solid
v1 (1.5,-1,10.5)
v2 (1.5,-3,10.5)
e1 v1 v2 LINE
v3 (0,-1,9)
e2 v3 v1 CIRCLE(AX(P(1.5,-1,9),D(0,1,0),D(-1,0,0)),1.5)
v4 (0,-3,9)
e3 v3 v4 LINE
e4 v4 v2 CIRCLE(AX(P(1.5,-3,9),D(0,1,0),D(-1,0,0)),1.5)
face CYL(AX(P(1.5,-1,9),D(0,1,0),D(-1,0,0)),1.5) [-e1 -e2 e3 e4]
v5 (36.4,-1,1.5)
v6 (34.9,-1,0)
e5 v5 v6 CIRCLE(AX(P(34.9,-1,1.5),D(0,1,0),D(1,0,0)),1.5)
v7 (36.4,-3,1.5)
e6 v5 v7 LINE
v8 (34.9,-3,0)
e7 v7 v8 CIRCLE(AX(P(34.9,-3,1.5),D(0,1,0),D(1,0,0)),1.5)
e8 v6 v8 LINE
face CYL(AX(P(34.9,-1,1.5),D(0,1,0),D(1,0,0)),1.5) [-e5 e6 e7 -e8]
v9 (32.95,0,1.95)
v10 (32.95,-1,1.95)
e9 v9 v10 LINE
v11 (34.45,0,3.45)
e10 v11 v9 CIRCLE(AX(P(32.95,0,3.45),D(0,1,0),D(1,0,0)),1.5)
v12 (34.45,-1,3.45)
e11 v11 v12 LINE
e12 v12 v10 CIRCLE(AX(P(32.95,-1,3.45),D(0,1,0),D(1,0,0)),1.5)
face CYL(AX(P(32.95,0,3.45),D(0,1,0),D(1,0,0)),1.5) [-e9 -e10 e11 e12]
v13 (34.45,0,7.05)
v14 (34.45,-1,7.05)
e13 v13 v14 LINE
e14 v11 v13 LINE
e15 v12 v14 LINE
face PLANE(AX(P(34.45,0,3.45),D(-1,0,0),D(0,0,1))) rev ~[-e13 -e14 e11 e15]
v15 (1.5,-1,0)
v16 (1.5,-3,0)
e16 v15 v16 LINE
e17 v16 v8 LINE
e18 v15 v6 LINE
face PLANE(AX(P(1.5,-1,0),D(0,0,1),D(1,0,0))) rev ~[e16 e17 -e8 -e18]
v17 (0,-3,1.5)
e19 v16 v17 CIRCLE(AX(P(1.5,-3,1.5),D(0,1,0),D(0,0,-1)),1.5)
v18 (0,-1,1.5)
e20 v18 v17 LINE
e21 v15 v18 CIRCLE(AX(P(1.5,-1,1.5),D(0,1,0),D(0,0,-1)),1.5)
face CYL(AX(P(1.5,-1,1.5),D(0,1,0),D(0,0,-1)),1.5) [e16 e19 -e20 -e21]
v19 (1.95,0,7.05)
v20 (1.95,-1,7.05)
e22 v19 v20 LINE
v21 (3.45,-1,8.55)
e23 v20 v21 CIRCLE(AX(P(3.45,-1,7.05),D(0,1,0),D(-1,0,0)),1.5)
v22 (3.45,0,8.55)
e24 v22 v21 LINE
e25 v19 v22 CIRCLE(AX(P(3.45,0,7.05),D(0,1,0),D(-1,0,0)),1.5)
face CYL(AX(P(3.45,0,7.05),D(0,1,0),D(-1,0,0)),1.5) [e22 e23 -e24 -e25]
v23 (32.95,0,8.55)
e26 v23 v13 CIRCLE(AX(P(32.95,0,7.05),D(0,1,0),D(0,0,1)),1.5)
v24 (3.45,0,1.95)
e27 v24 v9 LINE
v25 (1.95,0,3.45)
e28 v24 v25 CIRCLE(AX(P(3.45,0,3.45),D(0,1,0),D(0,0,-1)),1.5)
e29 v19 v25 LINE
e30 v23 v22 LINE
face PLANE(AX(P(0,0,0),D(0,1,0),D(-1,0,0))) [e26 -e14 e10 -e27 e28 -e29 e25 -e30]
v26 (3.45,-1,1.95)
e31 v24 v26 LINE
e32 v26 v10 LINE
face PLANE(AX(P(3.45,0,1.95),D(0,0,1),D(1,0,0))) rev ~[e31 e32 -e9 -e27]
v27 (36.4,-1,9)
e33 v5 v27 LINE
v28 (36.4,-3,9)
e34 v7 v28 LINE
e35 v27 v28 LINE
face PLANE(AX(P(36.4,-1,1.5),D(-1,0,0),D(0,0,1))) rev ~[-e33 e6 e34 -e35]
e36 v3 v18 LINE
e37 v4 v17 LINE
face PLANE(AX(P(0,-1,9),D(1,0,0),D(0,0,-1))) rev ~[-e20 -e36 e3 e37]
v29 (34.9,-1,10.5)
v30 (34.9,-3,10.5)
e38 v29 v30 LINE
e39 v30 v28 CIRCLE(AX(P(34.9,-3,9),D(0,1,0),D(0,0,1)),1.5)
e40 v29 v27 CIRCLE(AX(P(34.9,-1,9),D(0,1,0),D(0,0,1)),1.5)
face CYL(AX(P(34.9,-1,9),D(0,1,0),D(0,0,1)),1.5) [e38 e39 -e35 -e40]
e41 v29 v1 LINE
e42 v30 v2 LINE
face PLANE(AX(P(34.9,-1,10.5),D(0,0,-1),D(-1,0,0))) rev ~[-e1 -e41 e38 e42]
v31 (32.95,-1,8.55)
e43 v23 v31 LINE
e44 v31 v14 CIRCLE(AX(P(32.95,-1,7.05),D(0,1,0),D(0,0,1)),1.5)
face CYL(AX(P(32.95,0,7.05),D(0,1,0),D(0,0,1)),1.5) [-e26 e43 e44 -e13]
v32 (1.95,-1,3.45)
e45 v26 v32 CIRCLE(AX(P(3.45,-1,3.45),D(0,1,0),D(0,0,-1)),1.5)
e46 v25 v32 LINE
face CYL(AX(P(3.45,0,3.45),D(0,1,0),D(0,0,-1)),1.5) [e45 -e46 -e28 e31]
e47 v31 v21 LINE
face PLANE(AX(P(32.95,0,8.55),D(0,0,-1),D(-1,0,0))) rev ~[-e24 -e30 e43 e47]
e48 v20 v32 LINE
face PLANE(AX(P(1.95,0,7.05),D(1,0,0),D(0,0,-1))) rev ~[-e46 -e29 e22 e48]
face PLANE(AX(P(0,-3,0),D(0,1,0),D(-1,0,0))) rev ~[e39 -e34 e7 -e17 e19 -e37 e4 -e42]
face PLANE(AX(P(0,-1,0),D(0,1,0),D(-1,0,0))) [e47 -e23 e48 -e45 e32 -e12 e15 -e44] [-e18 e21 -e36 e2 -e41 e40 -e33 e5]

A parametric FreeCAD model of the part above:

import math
import FreeCAD as App
import Part
import Sketcher

V = App.Vector
Q = App.Units.Quantity

doc = App.newDocument("Part")
params = doc.addObject("Spreadsheet::Sheet", "Params")
for row, (alias, value) in enumerate([
    ("sketch1_radius", "1.5 mm"),
    ("sketch1_width", "29.5 mm"),
    ("sketch1_height", "3.6 mm"),
    ("pad1_length", "1 mm"),
    ("sketch2_radius", "1.5 mm"),
    ("sketch2_width", "33.4 mm"),
    ("sketch2_height", "7.5 mm"),
    ("pad2_length", "2 mm"),
], start=1):
    params.set(f"A{row}", alias)
    params.set(f"B{row}", "=" + value)
    params.setAlias(f"B{row}", alias)

body = doc.addObject("PartDesign::Body", "Body")

sketch1 = body.newObject("Sketcher::SketchObject", "Sketch")
sketch1.AttachmentSupport = (doc.getObject("XZ_Plane"), [""])
sketch1.MapMode = "FlatFace"
sketch1.addGeometry(Part.LineSegment(V(33, 1.9, 0), V(3.5, 1.9, 0)), False)
sketch1.addGeometry(Part.ArcOfCircle(Part.Circle(V(3.5, 3.5, 0), V(0, 0, 1), 1.5), math.radians(180), math.radians(270)), False)
sketch1.addGeometry(Part.LineSegment(V(1.9, 3.5, 0), V(1.9, 7, 0)), False)
sketch1.addGeometry(Part.ArcOfCircle(Part.Circle(V(3.5, 7, 0), V(0, 0, 1), 1.5), math.radians(90), math.radians(180)), False)
sketch1.addGeometry(Part.LineSegment(V(3.5, 8.6, 0), V(33, 8.6, 0)), False)
sketch1.addGeometry(Part.ArcOfCircle(Part.Circle(V(33, 7, 0), V(0, 0, 1), 1.5), math.radians(0), math.radians(90)), False)
sketch1.addGeometry(Part.LineSegment(V(34.5, 7, 0), V(34.5, 3.5, 0)), False)
sketch1.addGeometry(Part.ArcOfCircle(Part.Circle(V(33, 3.5, 0), V(0, 0, 1), 1.5), math.radians(-90), math.radians(0)), False)
sketch1.addConstraint(Sketcher.Constraint("Tangent", 0, 2, 1, 2))
sketch1.addConstraint(Sketcher.Constraint("Tangent", 1, 1, 2, 1))
sketch1.addConstraint(Sketcher.Constraint("Tangent", 2, 2, 3, 2))
sketch1.addConstraint(Sketcher.Constraint("Tangent", 3, 1, 4, 1))
sketch1.addConstraint(Sketcher.Constraint("Tangent", 4, 2, 5, 2))
sketch1.addConstraint(Sketcher.Constraint("Tangent", 5, 1, 6, 1))
sketch1.addConstraint(Sketcher.Constraint("Tangent", 6, 2, 7, 2))
sketch1.addConstraint(Sketcher.Constraint("Tangent", 7, 1, 0, 1))
sketch1.addConstraint(Sketcher.Constraint("Horizontal", 0))
sketch1.addConstraint(Sketcher.Constraint("Vertical", 2))
sketch1.addConstraint(Sketcher.Constraint("Horizontal", 4))
sketch1.addConstraint(Sketcher.Constraint("Vertical", 6))
sketch1.addConstraint(Sketcher.Constraint("Equal", 1, 3))
sketch1.addConstraint(Sketcher.Constraint("Equal", 3, 5))
sketch1.addConstraint(Sketcher.Constraint("Equal", 5, 7))
sketch1.addConstraint(Sketcher.Constraint("Radius", 1, Q("1.5 mm")))
sketch1.addConstraint(Sketcher.Constraint("DistanceX", 0, 2, 0, 1, Q("29.5 mm")))
sketch1.addConstraint(Sketcher.Constraint("DistanceY", 2, 1, 2, 2, Q("3.6 mm")))
sketch1.addConstraint(Sketcher.Constraint("DistanceX", -1, 1, 1, 3, Q("3.45 mm")))
sketch1.addConstraint(Sketcher.Constraint("DistanceY", -1, 1, 1, 3, Q("3.45 mm")))
sketch1.setExpression("Constraints[15]", "Params.sketch1_radius")
sketch1.setExpression("Constraints[16]", "Params.sketch1_width")
sketch1.setExpression("Constraints[17]", "Params.sketch1_height")
pad1 = body.newObject("PartDesign::Pad", "Pad")
pad1.Profile = sketch1
pad1.setExpression("Length", "Params.pad1_length")

sketch2 = body.newObject("Sketcher::SketchObject", "Sketch001")
sketch2.AttachmentSupport = (doc.getObject("XZ_Plane"), [""])
sketch2.MapMode = "FlatFace"
sketch2.AttachmentOffset = App.Placement(V(0, 0, 1), App.Rotation())
sketch2.addGeometry(Part.LineSegment(V(34.9, 0, 0), V(1.5, 0, 0)), False)
sketch2.addGeometry(Part.ArcOfCircle(Part.Circle(V(1.5, 1.5, 0), V(0, 0, 1), 1.5), math.radians(180), math.radians(270)), False)
sketch2.addGeometry(Part.LineSegment(V(0, 1.5, 0), V(0, 9, 0)), False)
sketch2.addGeometry(Part.ArcOfCircle(Part.Circle(V(1.5, 9, 0), V(0, 0, 1), 1.5), math.radians(90), math.radians(180)), False)
sketch2.addGeometry(Part.LineSegment(V(1.5, 10.5, 0), V(34.9, 10.5, 0)), False)
sketch2.addGeometry(Part.ArcOfCircle(Part.Circle(V(34.9, 9, 0), V(0, 0, 1), 1.5), math.radians(0), math.radians(90)), False)
sketch2.addGeometry(Part.LineSegment(V(36.4, 9, 0), V(36.4, 1.5, 0)), False)
sketch2.addGeometry(Part.ArcOfCircle(Part.Circle(V(34.9, 1.5, 0), V(0, 0, 1), 1.5), math.radians(-90), math.radians(0)), False)
sketch2.addConstraint(Sketcher.Constraint("Tangent", 0, 2, 1, 2))
sketch2.addConstraint(Sketcher.Constraint("Tangent", 1, 1, 2, 1))
sketch2.addConstraint(Sketcher.Constraint("Tangent", 2, 2, 3, 2))
sketch2.addConstraint(Sketcher.Constraint("Tangent", 3, 1, 4, 1))
sketch2.addConstraint(Sketcher.Constraint("Tangent", 4, 2, 5, 2))
sketch2.addConstraint(Sketcher.Constraint("Tangent", 5, 1, 6, 1))
sketch2.addConstraint(Sketcher.Constraint("Tangent", 6, 2, 7, 2))
sketch2.addConstraint(Sketcher.Constraint("Tangent", 7, 1, 0, 1))
sketch2.addConstraint(Sketcher.Constraint("Horizontal", 0))
sketch2.addConstraint(Sketcher.Constraint("Vertical", 2))
sketch2.addConstraint(Sketcher.Constraint("Horizontal", 4))
sketch2.addConstraint(Sketcher.Constraint("Vertical", 6))
sketch2.addConstraint(Sketcher.Constraint("Equal", 1, 3))
sketch2.addConstraint(Sketcher.Constraint("Equal", 3, 5))
sketch2.addConstraint(Sketcher.Constraint("Equal", 5, 7))
sketch2.addConstraint(Sketcher.Constraint("PointOnObject", 0, 2, -1))
sketch2.addConstraint(Sketcher.Constraint("PointOnObject", 1, 1, -2))
sketch2.addConstraint(Sketcher.Constraint("Radius", 1, Q("1.5 mm")))
sketch2.addConstraint(Sketcher.Constraint("DistanceX", 0, 2, 0, 1, Q("33.4 mm")))
sketch2.addConstraint(Sketcher.Constraint("DistanceY", 2, 1, 2, 2, Q("7.5 mm")))
sketch2.setExpression("Constraints[17]", "Params.sketch2_radius")
sketch2.setExpression("Constraints[18]", "Params.sketch2_width")
sketch2.setExpression("Constraints[19]", "Params.sketch2_height")
pad2 = body.newObject("PartDesign::Pad", "Pad001")
pad2.Profile = sketch2
pad2.setExpression("Length", "Params.pad2_length")

doc.recompute()
